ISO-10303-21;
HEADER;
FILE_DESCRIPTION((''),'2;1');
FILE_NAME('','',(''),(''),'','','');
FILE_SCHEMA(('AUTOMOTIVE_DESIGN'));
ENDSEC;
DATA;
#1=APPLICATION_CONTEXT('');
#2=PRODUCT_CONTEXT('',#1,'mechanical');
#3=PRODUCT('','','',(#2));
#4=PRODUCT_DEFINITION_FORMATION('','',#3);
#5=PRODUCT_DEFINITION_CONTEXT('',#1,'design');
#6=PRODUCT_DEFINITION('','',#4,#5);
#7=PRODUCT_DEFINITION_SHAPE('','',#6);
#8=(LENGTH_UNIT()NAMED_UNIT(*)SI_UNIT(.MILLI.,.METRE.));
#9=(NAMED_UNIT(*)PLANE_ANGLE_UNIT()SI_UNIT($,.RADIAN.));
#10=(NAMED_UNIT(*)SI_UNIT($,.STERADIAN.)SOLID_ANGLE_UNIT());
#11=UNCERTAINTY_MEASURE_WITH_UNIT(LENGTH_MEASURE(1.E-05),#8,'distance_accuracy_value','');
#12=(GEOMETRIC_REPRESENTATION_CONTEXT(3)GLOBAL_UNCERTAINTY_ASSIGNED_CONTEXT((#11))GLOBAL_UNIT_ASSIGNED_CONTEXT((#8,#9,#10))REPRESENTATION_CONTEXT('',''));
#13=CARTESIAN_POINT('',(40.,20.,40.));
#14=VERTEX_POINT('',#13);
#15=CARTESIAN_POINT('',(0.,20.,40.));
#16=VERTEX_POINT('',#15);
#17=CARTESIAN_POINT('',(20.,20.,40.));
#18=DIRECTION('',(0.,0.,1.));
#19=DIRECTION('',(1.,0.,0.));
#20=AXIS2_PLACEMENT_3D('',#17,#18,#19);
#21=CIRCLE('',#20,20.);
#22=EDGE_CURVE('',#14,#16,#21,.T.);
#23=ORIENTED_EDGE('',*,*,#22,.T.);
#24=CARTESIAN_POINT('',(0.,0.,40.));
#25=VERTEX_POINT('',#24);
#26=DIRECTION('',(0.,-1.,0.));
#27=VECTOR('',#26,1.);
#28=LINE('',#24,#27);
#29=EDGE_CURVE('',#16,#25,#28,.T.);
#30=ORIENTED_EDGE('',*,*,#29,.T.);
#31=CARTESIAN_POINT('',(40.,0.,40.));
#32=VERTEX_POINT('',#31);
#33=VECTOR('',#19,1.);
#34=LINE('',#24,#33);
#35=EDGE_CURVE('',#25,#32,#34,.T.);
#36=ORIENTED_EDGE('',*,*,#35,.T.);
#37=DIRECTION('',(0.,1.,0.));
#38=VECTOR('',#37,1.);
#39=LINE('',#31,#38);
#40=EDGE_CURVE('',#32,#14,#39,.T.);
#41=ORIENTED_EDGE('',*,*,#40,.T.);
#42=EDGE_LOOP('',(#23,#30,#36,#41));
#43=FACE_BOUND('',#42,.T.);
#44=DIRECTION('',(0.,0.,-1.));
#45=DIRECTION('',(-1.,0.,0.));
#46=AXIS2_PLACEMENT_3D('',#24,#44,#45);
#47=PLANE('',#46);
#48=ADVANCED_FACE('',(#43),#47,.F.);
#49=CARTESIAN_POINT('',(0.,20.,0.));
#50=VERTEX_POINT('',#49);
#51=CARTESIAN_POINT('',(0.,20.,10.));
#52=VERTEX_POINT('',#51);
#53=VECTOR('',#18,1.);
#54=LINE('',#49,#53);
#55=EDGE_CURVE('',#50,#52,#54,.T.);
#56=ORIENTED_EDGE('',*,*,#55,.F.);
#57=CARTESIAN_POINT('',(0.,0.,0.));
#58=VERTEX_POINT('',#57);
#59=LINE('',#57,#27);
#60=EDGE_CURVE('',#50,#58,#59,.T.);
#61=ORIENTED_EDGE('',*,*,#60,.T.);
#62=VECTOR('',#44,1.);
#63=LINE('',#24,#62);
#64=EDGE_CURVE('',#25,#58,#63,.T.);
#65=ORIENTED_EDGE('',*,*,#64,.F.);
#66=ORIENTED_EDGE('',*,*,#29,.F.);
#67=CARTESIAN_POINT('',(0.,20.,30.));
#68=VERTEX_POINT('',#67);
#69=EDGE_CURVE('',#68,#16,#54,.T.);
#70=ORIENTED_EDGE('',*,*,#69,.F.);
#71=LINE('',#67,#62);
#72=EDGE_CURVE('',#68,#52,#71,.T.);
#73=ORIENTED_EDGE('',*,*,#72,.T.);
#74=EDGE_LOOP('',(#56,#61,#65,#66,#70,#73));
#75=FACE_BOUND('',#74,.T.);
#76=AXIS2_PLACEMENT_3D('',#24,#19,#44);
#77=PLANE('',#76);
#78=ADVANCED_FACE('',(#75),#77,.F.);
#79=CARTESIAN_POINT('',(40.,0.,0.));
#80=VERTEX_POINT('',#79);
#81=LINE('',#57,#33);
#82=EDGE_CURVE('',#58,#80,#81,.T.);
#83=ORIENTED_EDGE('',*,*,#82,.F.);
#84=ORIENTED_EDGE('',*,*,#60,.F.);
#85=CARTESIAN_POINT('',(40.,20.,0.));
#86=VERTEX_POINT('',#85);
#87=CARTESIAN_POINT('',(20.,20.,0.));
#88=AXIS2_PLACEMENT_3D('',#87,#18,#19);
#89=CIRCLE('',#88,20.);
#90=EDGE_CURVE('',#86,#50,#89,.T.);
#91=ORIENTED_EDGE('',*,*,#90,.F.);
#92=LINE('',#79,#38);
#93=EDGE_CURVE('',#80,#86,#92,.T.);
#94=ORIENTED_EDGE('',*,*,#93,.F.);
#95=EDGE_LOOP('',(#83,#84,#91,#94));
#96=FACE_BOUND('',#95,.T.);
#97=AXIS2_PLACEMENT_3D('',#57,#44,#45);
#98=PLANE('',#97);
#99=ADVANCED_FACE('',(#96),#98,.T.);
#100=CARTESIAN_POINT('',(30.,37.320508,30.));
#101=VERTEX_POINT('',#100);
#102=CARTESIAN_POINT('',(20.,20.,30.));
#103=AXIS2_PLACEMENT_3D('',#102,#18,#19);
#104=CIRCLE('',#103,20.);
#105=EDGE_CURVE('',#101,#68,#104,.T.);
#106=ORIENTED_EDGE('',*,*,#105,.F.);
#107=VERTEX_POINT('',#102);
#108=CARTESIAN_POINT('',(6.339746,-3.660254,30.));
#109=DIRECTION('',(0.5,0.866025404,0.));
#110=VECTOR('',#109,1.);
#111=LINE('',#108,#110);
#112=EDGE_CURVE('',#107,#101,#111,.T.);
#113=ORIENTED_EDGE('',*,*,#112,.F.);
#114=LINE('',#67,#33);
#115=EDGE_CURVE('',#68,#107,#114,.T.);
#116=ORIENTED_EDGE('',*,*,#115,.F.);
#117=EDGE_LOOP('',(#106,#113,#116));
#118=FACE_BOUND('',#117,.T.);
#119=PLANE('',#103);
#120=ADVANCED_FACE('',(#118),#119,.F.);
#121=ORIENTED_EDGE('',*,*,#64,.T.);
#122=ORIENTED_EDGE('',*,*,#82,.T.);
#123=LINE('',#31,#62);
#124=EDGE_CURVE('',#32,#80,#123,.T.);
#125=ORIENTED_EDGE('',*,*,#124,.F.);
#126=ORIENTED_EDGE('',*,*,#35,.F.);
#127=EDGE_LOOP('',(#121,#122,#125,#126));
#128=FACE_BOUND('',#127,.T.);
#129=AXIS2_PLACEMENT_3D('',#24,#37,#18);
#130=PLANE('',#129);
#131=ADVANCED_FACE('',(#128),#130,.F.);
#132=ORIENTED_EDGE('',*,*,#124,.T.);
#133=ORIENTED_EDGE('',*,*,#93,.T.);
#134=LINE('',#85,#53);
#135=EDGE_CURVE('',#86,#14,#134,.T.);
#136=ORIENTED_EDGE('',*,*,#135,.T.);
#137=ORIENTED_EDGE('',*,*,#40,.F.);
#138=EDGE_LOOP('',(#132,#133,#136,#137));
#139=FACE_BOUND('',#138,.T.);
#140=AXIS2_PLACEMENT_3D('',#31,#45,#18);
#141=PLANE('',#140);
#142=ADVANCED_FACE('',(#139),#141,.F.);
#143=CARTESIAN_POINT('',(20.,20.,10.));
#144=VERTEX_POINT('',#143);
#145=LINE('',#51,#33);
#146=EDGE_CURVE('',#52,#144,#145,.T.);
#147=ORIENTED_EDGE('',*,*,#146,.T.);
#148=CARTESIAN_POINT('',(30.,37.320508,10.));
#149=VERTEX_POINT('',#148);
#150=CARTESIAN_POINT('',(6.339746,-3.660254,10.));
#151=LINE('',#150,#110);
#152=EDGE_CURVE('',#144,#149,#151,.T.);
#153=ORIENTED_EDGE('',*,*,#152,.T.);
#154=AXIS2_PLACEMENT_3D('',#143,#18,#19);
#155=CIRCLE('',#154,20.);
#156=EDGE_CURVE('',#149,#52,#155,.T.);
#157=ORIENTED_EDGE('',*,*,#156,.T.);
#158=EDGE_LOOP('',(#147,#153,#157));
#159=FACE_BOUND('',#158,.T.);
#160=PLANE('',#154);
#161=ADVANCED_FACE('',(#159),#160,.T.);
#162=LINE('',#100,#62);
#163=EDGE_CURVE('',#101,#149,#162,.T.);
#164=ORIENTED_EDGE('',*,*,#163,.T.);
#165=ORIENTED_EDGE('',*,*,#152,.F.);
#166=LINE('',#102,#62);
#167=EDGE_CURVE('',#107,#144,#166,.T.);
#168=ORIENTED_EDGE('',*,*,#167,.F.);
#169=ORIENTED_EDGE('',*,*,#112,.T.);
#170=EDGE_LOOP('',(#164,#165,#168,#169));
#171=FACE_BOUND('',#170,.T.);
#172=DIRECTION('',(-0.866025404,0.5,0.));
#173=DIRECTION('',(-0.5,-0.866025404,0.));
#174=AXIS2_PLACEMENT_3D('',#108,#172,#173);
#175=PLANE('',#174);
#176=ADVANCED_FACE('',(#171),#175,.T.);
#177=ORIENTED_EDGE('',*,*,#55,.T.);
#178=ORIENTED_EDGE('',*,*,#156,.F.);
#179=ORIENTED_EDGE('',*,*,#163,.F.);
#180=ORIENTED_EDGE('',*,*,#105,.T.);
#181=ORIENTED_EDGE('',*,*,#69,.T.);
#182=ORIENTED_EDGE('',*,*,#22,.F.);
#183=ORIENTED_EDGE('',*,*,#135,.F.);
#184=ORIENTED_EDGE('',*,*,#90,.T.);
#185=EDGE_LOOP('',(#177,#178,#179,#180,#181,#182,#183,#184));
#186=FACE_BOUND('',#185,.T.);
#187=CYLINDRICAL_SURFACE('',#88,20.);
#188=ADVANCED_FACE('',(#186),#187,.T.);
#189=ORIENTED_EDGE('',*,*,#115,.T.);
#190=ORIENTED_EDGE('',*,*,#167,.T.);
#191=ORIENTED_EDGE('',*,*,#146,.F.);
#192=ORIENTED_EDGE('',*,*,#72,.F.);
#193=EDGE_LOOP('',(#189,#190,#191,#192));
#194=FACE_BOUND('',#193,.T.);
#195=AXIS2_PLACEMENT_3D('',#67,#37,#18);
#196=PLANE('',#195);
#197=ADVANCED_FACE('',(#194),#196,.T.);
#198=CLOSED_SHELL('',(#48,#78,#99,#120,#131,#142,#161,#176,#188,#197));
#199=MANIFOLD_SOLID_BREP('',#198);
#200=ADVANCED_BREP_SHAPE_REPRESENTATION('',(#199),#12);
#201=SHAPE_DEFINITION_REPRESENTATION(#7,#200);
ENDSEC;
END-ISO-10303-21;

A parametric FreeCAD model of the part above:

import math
import FreeCAD as App
import Part
import Sketcher

V = App.Vector
Q = App.Units.Quantity


def add_polygon(sketch, points):
    """Adds a closed chain of lines whose ends are joined by coincident constraints."""
    first, n = sketch.GeometryCount, len(points)
    for a, b in zip(points, points[1:] + points[:1]):
        sketch.addGeometry(Part.LineSegment(App.Vector(*a, 0), App.Vector(*b, 0)), False)
    for i in range(n):
        sketch.addConstraint(Sketcher.Constraint("Coincident", first + i, 2, first + (i + 1) % n, 1))

doc = App.newDocument("Part")
body = doc.addObject("PartDesign::Body", "Body")

# Sketch on XY plane
sketch1 = body.newObject("Sketcher::SketchObject", "Sketch")
sketch1.AttachmentSupport = (doc.getObject("XY_Plane"), [""])
sketch1.MapMode = "FlatFace"
add_polygon(sketch1, [(0, 40), (0, 0), (40, 0), (40, 40)])  # lines 0-3
sketch1.addConstraint(Sketcher.Constraint("Vertical", 0))
sketch1.addConstraint(Sketcher.Constraint("Horizontal", 1))
sketch1.addConstraint(Sketcher.Constraint("Vertical", 2))
sketch1.addConstraint(Sketcher.Constraint("Horizontal", 3))
sketch1.addConstraint(Sketcher.Constraint("Coincident", 0, 2, -1, 1))
sketch1.addConstraint(Sketcher.Constraint("Equal", 3, 0))
sketch1.addConstraint(Sketcher.Constraint("DistanceX", 1, 1, 1, 2, Q("40 mm")))
pad1 = body.newObject("PartDesign::Pad", "Pad")
pad1.Profile = sketch1
pad1.Length = 40

# Sketch on XY plane
sketch2 = body.newObject("Sketcher::SketchObject", "Sketch001")
sketch2.AttachmentSupport = (doc.getObject("XY_Plane"), [""])
sketch2.MapMode = "FlatFace"
sketch2.AttachmentOffset = App.Placement(V(0, 0, 40), App.Rotation())
sketch2.addGeometry(Part.LineSegment(V(0, 40, 0), V(0, 20, 0)), False)
sketch2.addGeometry(Part.ArcOfCircle(Part.Circle(V(20, 20, 0), V(0, 0, 1), 20), math.radians(90), math.radians(180)), False)
sketch2.addGeometry(Part.LineSegment(V(20, 40, 0), V(0, 40, 0)), False)
sketch2.addGeometry(Part.LineSegment(V(40, 40, 0), V(20, 40, 0)), False)
sketch2.addGeometry(Part.ArcOfCircle(Part.Circle(V(20, 20, 0), V(0, 0, 1), 20), math.radians(0), math.radians(90)), False)
sketch2.addGeometry(Part.LineSegment(V(40, 20, 0), V(40, 40, 0)), False)
sketch2.addConstraint(Sketcher.Constraint("Tangent", 0, 2, 1, 2))
sketch2.addConstraint(Sketcher.Constraint("Tangent", 1, 1, 2, 1))
sketch2.addConstraint(Sketcher.Constraint("Coincident", 2, 2, 0, 1))
sketch2.addConstraint(Sketcher.Constraint("Tangent", 3, 2, 4, 2))
sketch2.addConstraint(Sketcher.Constraint("Tangent", 4, 1, 5, 1))
sketch2.addConstraint(Sketcher.Constraint("Coincident", 5, 2, 3, 1))
sketch2.addConstraint(Sketcher.Constraint("Vertical", 0))
sketch2.addConstraint(Sketcher.Constraint("Horizontal", 2))
sketch2.addConstraint(Sketcher.Constraint("Horizontal", 3))
sketch2.addConstraint(Sketcher.Constraint("Vertical", 5))
sketch2.addConstraint(Sketcher.Constraint("Coincident", 4, 3, 1, 3))
sketch2.addConstraint(Sketcher.Constraint("Equal", 1, 4))
sketch2.addConstraint(Sketcher.Constraint("PointOnObject", 0, 2, -2))
sketch2.addConstraint(Sketcher.Constraint("Radius", 1, Q("20 mm")))
sketch2.addConstraint(Sketcher.Constraint("DistanceY", -1, 1, 1, 3, Q("20 mm")))
pocket1 = body.newObject("PartDesign::Pocket", "Pocket")
pocket1.Profile = sketch2
pocket1.Length = 40

# Sketch on XY plane
sketch3 = body.newObject("Sketcher::SketchObject", "Sketch002")
sketch3.AttachmentSupport = (doc.getObject("XY_Plane"), [""])
sketch3.MapMode = "FlatFace"
sketch3.AttachmentOffset = App.Placement(V(0, 0, 10), App.Rotation())
sketch3.addGeometry(Part.LineSegment(V(0, 20, 0), V(20, 20, 0)), False)
sketch3.addGeometry(Part.LineSegment(V(20, 20, 0), V(20, 40, 0)), False)
sketch3.addGeometry(Part.ArcOfCircle(Part.Circle(V(20, 20, 0), V(0, 0, 1), 20), math.radians(90), math.radians(180)), False)
sketch3.addConstraint(Sketcher.Constraint("Coincident", 0, 2, 1, 1))
sketch3.addConstraint(Sketcher.Constraint("Coincident", 1, 2, 2, 1))
sketch3.addConstraint(Sketcher.Constraint("Coincident", 2, 2, 0, 1))
sketch3.addConstraint(Sketcher.Constraint("Horizontal", 0))
sketch3.addConstraint(Sketcher.Constraint("Vertical", 1))
sketch3.addConstraint(Sketcher.Constraint("Coincident", 0, 2, 2, 3))
sketch3.addConstraint(Sketcher.Constraint("PointOnObject", 2, 2, -2))
sketch3.addConstraint(Sketcher.Constraint("Radius", 2, Q("20 mm")))
sketch3.addConstraint(Sketcher.Constraint("DistanceY", -1, 1, 2, 3, Q("20 mm")))
pocket2 = body.newObject("PartDesign::Pocket", "Pocket001")
pocket2.Profile = sketch3
pocket2.Length = 20
pocket2.Reversed = True

# Sketch on XY plane
sketch4 = body.newObject("Sketcher::SketchObject", "Sketch003")
sketch4.AttachmentSupport = (doc.getObject("XY_Plane"), [""])
sketch4.MapMode = "FlatFace"
sketch4.AttachmentOffset = App.Placement(V(0, 0, 40), App.Rotation())
sketch4.addGeometry(Part.LineSegment(V(20, 40, 0), V(20, 20, 0)), False)
sketch4.addGeometry(Part.LineSegment(V(20, 20, 0), V(34, 34, 0)), False)
sketch4.addGeometry(Part.ArcOfCircle(Part.Circle(V(20, 20, 0), V(0, 0, 1), 20), math.radians(45), math.radians(90)), False)
sketch4.addConstraint(Sketcher.Constraint("Coincident", 0, 2, 1, 1))
sketch4.addConstraint(Sketcher.Constraint("Coincident", 1, 2, 2, 1))
sketch4.addConstraint(Sketcher.Constraint("Coincident", 2, 2, 0, 1))
sketch4.addConstraint(Sketcher.Constraint("Vertical", 0))
sketch4.addConstraint(Sketcher.Constraint("Coincident", 0, 2, 2, 3))
sketch4.addConstraint(Sketcher.Constraint("Radius", 2, Q("20 mm")))
sketch4.addConstraint(Sketcher.Constraint("Angle", 1, Q("45 deg")))
sketch4.addConstraint(Sketcher.Constraint("DistanceX", -1, 1, 2, 3, Q("20 mm")))
sketch4.addConstraint(Sketcher.Constraint("DistanceY", -1, 1, 2, 3, Q("20 mm")))
pocket3 = body.newObject("PartDesign::Pocket", "Pocket002")
pocket3.Profile = sketch4
pocket3.Length = 30

# Sketch on XY plane
sketch5 = body.newObject("Sketcher::SketchObject", "Sketch004")
sketch5.AttachmentSupport = (doc.getObject("XY_Plane"), [""])
sketch5.MapMode = "FlatFace"
sketch5.AttachmentOffset = App.Placement(V(0, 0, 40), App.Rotation())
sketch5.addGeometry(Part.LineSegment(V(20, 40, 0), V(20, 20, 0)), False)
sketch5.addGeometry(Part.LineSegment(V(20, 20, 0), V(34, 34, 0)), False)
sketch5.addGeometry(Part.ArcOfCircle(Part.Circle(V(20, 20, 0), V(0, 0, 1), 20), math.radians(45), math.radians(90)), False)
sketch5.addConstraint(Sketcher.Constraint("Coincident", 0, 2, 1, 1))
sketch5.addConstraint(Sketcher.Constraint("Coincident", 1, 2, 2, 1))
sketch5.addConstraint(Sketcher.Constraint("Coincident", 2, 2, 0, 1))
sketch5.addConstraint(Sketcher.Constraint("Vertical", 0))
sketch5.addConstraint(Sketcher.Constraint("Coincident", 0, 2, 2, 3))
sketch5.addConstraint(Sketcher.Constraint("Radius", 2, Q("20 mm")))
sketch5.addConstraint(Sketcher.Constraint("Angle", 1, Q("45 deg")))
sketch5.addConstraint(Sketcher.Constraint("DistanceX", -1, 1, 2, 3, Q("20 mm")))
sketch5.addConstraint(Sketcher.Constraint("DistanceY", -1, 1, 2, 3, Q("20 mm")))
pad2 = body.newObject("PartDesign::Pad", "Pad001")
pad2.Profile = sketch5
pad2.Length = 10
pad2.Reversed = True

# Sketch on XY plane
sketch6 = body.newObject("Sketcher::SketchObject", "Sketch005")
sketch6.AttachmentSupport = (doc.getObject("XY_Plane"), [""])
sketch6.MapMode = "FlatFace"
sketch6.AttachmentOffset = App.Placement(V(0, 0, 10), App.Rotation())
sketch6.addGeometry(Part.LineSegment(V(20, 20, 0), V(34, 34, 0)), False)
sketch6.addGeometry(Part.ArcOfCircle(Part.Circle(V(20, 20, 0), V(0, 0, 1), 20), math.radians(45), math.radians(60)), False)
sketch6.addGeometry(Part.LineSegment(V(30, 37, 0), V(20, 20, 0)), False)
sketch6.addConstraint(Sketcher.Constraint("Coincident", 0, 2, 1, 1))
sketch6.addConstraint(Sketcher.Constraint("Coincident", 1, 2, 2, 1))
sketch6.addConstraint(Sketcher.Constraint("Coincident", 2, 2, 0, 1))
sketch6.addConstraint(Sketcher.Constraint("Coincident", 2, 2, 1, 3))
sketch6.addConstraint(Sketcher.Constraint("Radius", 1, Q("20 mm")))
sketch6.addConstraint(Sketcher.Constraint("Angle", 0, Q("45 deg")))
sketch6.addConstraint(Sketcher.Constraint("Angle", 2, Q("-120 deg")))
sketch6.addConstraint(Sketcher.Constraint("DistanceX", -1, 1, 1, 3, Q("20 mm")))
sketch6.addConstraint(Sketcher.Constraint("DistanceY", -1, 1, 1, 3, Q("20 mm")))
pad3 = body.newObject("PartDesign::Pad", "Pad002")
pad3.Profile = sketch6
pad3.Length = 20

doc.recompute()
